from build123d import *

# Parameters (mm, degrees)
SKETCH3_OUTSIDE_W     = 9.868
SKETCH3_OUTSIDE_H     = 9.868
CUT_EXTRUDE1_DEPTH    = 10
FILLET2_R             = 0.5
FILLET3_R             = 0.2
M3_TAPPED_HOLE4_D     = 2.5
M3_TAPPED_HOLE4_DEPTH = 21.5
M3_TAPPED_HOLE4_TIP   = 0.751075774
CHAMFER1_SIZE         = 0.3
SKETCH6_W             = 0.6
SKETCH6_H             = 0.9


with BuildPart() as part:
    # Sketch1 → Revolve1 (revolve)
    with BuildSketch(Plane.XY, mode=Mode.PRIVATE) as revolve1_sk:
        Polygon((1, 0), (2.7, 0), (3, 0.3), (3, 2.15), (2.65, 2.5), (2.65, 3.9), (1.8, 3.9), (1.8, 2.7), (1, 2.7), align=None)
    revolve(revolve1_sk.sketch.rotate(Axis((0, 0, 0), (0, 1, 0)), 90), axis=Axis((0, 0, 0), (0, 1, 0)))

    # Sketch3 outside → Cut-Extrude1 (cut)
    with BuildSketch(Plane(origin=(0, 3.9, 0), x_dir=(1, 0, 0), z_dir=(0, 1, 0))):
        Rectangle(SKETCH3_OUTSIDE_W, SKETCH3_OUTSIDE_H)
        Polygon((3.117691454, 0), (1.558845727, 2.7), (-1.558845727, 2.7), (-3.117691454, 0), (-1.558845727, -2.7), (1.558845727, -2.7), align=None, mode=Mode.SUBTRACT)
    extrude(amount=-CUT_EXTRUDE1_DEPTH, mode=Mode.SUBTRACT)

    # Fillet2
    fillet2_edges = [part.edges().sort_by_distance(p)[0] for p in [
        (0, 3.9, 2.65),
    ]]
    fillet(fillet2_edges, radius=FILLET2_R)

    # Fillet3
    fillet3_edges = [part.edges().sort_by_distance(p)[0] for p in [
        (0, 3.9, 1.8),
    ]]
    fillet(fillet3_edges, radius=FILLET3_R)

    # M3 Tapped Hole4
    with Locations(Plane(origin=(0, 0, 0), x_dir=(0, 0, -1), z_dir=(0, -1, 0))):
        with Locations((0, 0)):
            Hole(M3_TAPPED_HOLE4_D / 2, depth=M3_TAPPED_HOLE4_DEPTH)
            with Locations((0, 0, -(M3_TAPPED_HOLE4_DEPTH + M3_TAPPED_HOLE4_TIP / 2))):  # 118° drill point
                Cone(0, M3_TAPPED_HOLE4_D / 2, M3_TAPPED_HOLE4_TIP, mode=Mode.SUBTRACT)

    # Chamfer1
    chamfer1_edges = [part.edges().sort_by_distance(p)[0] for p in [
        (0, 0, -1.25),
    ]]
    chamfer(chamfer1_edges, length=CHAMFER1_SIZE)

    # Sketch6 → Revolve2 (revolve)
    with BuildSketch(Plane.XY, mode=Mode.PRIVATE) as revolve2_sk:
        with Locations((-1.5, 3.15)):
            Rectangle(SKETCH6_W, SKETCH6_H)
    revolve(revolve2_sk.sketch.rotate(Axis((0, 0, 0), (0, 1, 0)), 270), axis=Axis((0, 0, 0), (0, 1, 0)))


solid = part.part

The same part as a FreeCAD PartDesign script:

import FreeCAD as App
import Part
import Sketcher

V = App.Vector
Q = App.Units.Quantity


def edges_at(feature, points):
    """Names of the edges that pass closest to the given points."""
    edges = feature.Shape.Edges
    near = lambda p: min(range(len(edges)), key=lambda i: edges[i].distToShape(Part.Vertex(*p))[0])
    return sorted({f"Edge{near(p) + 1}" for p in points})

doc = App.newDocument("Part")
body = doc.addObject("PartDesign::Body", "Body")

# Sketch on XY plane
sketch1 = body.newObject("Sketcher::SketchObject", "Sketch")
sketch1.AttachmentSupport = (doc.getObject("XY_Plane"), [""])
sketch1.MapMode = "FlatFace"
sketch1.addGeometry([
    Part.LineSegment(V(1, 0, 0), V(2.7, 0, 0)),  # 0
    Part.LineSegment(V(2.7, 0, 0), V(3, 0.3, 0)),  # 1
    Part.LineSegment(V(3, 0.3, 0), V(3, 2.15, 0)),  # 2
    Part.LineSegment(V(3, 2.15, 0), V(2.65, 2.5, 0)),  # 3
    Part.LineSegment(V(2.65, 2.5, 0), V(2.65, 3.9, 0)),  # 4
    Part.LineSegment(V(2.65, 3.9, 0), V(1.8, 3.9, 0)),  # 5
    Part.LineSegment(V(1.8, 3.9, 0), V(1.8, 2.7, 0)),  # 6
    Part.LineSegment(V(1.8, 2.7, 0), V(1, 2.7, 0)),  # 7
    Part.LineSegment(V(1, 2.7, 0), V(1, 0, 0)),  # 8
], False)
sketch1.addConstraint([
    Sketcher.Constraint("Coincident", 0, 2, 1, 1),
    Sketcher.Constraint("Coincident", 1, 2, 2, 1),
    Sketcher.Constraint("Coincident", 2, 2, 3, 1),
    Sketcher.Constraint("Coincident", 3, 2, 4, 1),
    Sketcher.Constraint("Coincident", 4, 2, 5, 1),
    Sketcher.Constraint("Coincident", 5, 2, 6, 1),
    Sketcher.Constraint("Coincident", 6, 2, 7, 1),
    Sketcher.Constraint("Coincident", 7, 2, 8, 1),
    Sketcher.Constraint("Coincident", 8, 2, 0, 1),
    Sketcher.Constraint("Horizontal", 0),
    Sketcher.Constraint("Vertical", 2),
    Sketcher.Constraint("Vertical", 4),
    Sketcher.Constraint("Horizontal", 5),
    Sketcher.Constraint("Vertical", 6),
    Sketcher.Constraint("Horizontal", 7),
    Sketcher.Constraint("Vertical", 8),
    Sketcher.Constraint("PointOnObject", 0, 2, -1),
    Sketcher.Constraint("Perpendicular", 1, 3),
    Sketcher.Constraint("Angle", 1, Q("45 deg")),
    Sketcher.Constraint("DistanceX", 0, 1, 0, 2, Q("1.7 mm")),
    Sketcher.Constraint("DistanceX", 7, 2, 7, 1, Q("0.8 mm")),
    Sketcher.Constraint("DistanceY", 4, 1, 4, 2, Q("1.4 mm")),
    Sketcher.Constraint("DistanceY", 6, 2, 6, 1, Q("1.2 mm")),
    Sketcher.Constraint("DistanceY", 8, 2, 8, 1, Q("2.7 mm")),
    Sketcher.Constraint("DistanceX", -1, 1, 1, 2, Q("3 mm")),
    Sketcher.Constraint("DistanceX", -1, 1, 7, 2, Q("1 mm")),
    Sketcher.Constraint("DistanceX", 5, 2, 5, 1, Q("0.85 mm")),
])
revolution = body.newObject("PartDesign::Revolution", "Revolution")
revolution.Profile = sketch1
revolution.ReferenceAxis = (sketch1, ["V_Axis"])
revolution.Angle = 360

# Sketch on XZ plane
sketch2 = body.newObject("Sketcher::SketchObject", "Sketch001")
sketch2.AttachmentSupport = (doc.getObject("XZ_Plane"), [""])
sketch2.MapMode = "FlatFace"
sketch2.AttachmentOffset = App.Placement(V(0, 0, -3.9), App.Rotation())
sketch2.addGeometry([
    Part.LineSegment(V(-4.9, -4.9, 0), V(-4.9, 4.9, 0)),  # 0
    Part.LineSegment(V(-4.9, 4.9, 0), V(4.9, 4.9, 0)),  # 1
    Part.LineSegment(V(4.9, 4.9, 0), V(4.9, -4.9, 0)),  # 2
    Part.LineSegment(V(4.9, -4.9, 0), V(-4.9, -4.9, 0)),  # 3
    Part.LineSegment(V(1.6, -2.7, 0), V(3.1, 0, 0)),  # 4
    Part.LineSegment(V(3.1, 0, 0), V(1.6, 2.7, 0)),  # 5
    Part.LineSegment(V(1.6, 2.7, 0), V(-1.6, 2.7, 0)),  # 6
    Part.LineSegment(V(-1.6, 2.7, 0), V(-3.1, 0, 0)),  # 7
    Part.LineSegment(V(-3.1, 0, 0), V(-1.6, -2.7, 0)),  # 8
    Part.LineSegment(V(-1.6, -2.7, 0), V(1.6, -2.7, 0)),  # 9
], False)
sketch2.addConstraint([
    Sketcher.Constraint("Coincident", 0, 2, 1, 1),
    Sketcher.Constraint("Coincident", 1, 2, 2, 1),
    Sketcher.Constraint("Coincident", 2, 2, 3, 1),
    Sketcher.Constraint("Coincident", 3, 2, 0, 1),
    Sketcher.Constraint("Coincident", 4, 2, 5, 1),
    Sketcher.Constraint("Coincident", 5, 2, 6, 1),
    Sketcher.Constraint("Coincident", 6, 2, 7, 1),
    Sketcher.Constraint("Coincident", 7, 2, 8, 1),
    Sketcher.Constraint("Coincident", 8, 2, 9, 1),
    Sketcher.Constraint("Coincident", 9, 2, 4, 1),
    Sketcher.Constraint("Vertical", 0),
    Sketcher.Constraint("Horizontal", 1),
    Sketcher.Constraint("Vertical", 2),
    Sketcher.Constraint("Horizontal", 3),
    Sketcher.Constraint("Horizontal", 6),
    Sketcher.Constraint("Horizontal", 9),
    Sketcher.Constraint("Symmetric", 0, 2, 2, 2, -1, 1),
    Sketcher.Constraint("Symmetric", 4, 2, 7, 2, -1, 1),
    Sketcher.Constraint("Symmetric", 5, 2, 8, 2, -1, 1),
    Sketcher.Constraint("PointOnObject", 4, 2, -1),
    Sketcher.Constraint("Parallel", 4, 7),
    Sketcher.Constraint("Vertical", 6, 2, 8, 2),
    Sketcher.Constraint("Equal", 3, 0),
    Sketcher.Constraint("Angle", 4, Q("60 deg")),
    Sketcher.Constraint("DistanceY", -1, 1, 5, 2, Q("2.7 mm")),
    Sketcher.Constraint("DistanceX", 1, 1, 1, 2, Q("9.868 mm")),
    Sketcher.Constraint("DistanceX", 6, 2, 6, 1, Q("3.117691 mm")),
])
pocket1 = body.newObject("PartDesign::Pocket", "Pocket")
pocket1.Profile = sketch2
pocket1.Length = 10
pocket1.Reversed = True
doc.recompute()

fillet = body.newObject("PartDesign::Fillet", "Fillet")
fillet.Base = (pocket1, edges_at(pocket1, [(0, 3.9, 2.65)]))
fillet.Radius = 0.5
doc.recompute()

fillet2 = body.newObject("PartDesign::Fillet", "Fillet001")
fillet2.Base = (fillet, edges_at(fillet, [(0, 3.9, 1.8)]))
fillet2.Radius = 0.2

# Sketch on XZ plane
sketch3 = body.newObject("Sketcher::SketchObject", "Sketch002")
sketch3.AttachmentSupport = (doc.getObject("XZ_Plane"), [""])
sketch3.MapMode = "FlatFace"
sketch3.addGeometry(Part.Circle(V(0, 0, 0), V(0, 0, 1), 1.2), False)
sketch3.addConstraint([
    Sketcher.Constraint("Coincident", 0, 3, -1, 1),
    Sketcher.Constraint("Diameter", 0, Q("2.5 mm")),
])
doc.recompute()
hole = body.newObject("PartDesign::Hole", "Hole")
hole.Profile = sketch3
hole.ThreadType = "None"
hole.Diameter = 2.5
hole.DepthType = "Dimension"
hole.Depth = 21.5
hole.DrillPoint = "Angled"
hole.DrillPointAngle = 118
doc.recompute()

chamfer = body.newObject("PartDesign::Chamfer", "Chamfer")
chamfer.Base = (hole, edges_at(hole, [(0, 0, -1.25)]))
chamfer.Size = 0.3

# Sketch on XY plane
sketch4 = body.newObject("Sketcher::SketchObject", "Sketch003")
sketch4.AttachmentSupport = (doc.getObject("XY_Plane"), [""])
sketch4.MapMode = "FlatFace"
sketch4.addGeometry([
    Part.LineSegment(V(-1.8, 3.6, 0), V(-1.8, 2.7, 0)),
    Part.LineSegment(V(-1.8, 2.7, 0), V(-1.2, 2.7, 0)),
    Part.LineSegment(V(-1.2, 2.7, 0), V(-1.2, 3.6, 0)),
    Part.LineSegment(V(-1.2, 3.6, 0), V(-1.8, 3.6, 0)),
], False)
sketch4.addConstraint([
    Sketcher.Constraint("Coincident", 0, 2, 1, 1),
    Sketcher.Constraint("Coincident", 1, 2, 2, 1),
    Sketcher.Constraint("Coincident", 2, 2, 3, 1),
    Sketcher.Constraint("Coincident", 3, 2, 0, 1),
    Sketcher.Constraint("Vertical", 0),
    Sketcher.Constraint("Horizontal", 1),
    Sketcher.Constraint("Vertical", 2),
    Sketcher.Constraint("Horizontal", 3),
    Sketcher.Constraint("DistanceX", 1, 1, 1, 2, Q("0.6 mm")),
    Sketcher.Constraint("DistanceY", 0, 2, 0, 1, Q("0.9 mm")),
    Sketcher.Constraint("DistanceX", 0, 2, -1, 1, Q("1.8 mm")),
    Sketcher.Constraint("DistanceY", -1, 1, 0, 2, Q("2.7 mm")),
])
revolution2 = body.newObject("PartDesign::Revolution", "Revolution001")
revolution2.Profile = sketch4
revolution2.ReferenceAxis = (sketch4, ["V_Axis"])
revolution2.Angle = 360

doc.recompute()
